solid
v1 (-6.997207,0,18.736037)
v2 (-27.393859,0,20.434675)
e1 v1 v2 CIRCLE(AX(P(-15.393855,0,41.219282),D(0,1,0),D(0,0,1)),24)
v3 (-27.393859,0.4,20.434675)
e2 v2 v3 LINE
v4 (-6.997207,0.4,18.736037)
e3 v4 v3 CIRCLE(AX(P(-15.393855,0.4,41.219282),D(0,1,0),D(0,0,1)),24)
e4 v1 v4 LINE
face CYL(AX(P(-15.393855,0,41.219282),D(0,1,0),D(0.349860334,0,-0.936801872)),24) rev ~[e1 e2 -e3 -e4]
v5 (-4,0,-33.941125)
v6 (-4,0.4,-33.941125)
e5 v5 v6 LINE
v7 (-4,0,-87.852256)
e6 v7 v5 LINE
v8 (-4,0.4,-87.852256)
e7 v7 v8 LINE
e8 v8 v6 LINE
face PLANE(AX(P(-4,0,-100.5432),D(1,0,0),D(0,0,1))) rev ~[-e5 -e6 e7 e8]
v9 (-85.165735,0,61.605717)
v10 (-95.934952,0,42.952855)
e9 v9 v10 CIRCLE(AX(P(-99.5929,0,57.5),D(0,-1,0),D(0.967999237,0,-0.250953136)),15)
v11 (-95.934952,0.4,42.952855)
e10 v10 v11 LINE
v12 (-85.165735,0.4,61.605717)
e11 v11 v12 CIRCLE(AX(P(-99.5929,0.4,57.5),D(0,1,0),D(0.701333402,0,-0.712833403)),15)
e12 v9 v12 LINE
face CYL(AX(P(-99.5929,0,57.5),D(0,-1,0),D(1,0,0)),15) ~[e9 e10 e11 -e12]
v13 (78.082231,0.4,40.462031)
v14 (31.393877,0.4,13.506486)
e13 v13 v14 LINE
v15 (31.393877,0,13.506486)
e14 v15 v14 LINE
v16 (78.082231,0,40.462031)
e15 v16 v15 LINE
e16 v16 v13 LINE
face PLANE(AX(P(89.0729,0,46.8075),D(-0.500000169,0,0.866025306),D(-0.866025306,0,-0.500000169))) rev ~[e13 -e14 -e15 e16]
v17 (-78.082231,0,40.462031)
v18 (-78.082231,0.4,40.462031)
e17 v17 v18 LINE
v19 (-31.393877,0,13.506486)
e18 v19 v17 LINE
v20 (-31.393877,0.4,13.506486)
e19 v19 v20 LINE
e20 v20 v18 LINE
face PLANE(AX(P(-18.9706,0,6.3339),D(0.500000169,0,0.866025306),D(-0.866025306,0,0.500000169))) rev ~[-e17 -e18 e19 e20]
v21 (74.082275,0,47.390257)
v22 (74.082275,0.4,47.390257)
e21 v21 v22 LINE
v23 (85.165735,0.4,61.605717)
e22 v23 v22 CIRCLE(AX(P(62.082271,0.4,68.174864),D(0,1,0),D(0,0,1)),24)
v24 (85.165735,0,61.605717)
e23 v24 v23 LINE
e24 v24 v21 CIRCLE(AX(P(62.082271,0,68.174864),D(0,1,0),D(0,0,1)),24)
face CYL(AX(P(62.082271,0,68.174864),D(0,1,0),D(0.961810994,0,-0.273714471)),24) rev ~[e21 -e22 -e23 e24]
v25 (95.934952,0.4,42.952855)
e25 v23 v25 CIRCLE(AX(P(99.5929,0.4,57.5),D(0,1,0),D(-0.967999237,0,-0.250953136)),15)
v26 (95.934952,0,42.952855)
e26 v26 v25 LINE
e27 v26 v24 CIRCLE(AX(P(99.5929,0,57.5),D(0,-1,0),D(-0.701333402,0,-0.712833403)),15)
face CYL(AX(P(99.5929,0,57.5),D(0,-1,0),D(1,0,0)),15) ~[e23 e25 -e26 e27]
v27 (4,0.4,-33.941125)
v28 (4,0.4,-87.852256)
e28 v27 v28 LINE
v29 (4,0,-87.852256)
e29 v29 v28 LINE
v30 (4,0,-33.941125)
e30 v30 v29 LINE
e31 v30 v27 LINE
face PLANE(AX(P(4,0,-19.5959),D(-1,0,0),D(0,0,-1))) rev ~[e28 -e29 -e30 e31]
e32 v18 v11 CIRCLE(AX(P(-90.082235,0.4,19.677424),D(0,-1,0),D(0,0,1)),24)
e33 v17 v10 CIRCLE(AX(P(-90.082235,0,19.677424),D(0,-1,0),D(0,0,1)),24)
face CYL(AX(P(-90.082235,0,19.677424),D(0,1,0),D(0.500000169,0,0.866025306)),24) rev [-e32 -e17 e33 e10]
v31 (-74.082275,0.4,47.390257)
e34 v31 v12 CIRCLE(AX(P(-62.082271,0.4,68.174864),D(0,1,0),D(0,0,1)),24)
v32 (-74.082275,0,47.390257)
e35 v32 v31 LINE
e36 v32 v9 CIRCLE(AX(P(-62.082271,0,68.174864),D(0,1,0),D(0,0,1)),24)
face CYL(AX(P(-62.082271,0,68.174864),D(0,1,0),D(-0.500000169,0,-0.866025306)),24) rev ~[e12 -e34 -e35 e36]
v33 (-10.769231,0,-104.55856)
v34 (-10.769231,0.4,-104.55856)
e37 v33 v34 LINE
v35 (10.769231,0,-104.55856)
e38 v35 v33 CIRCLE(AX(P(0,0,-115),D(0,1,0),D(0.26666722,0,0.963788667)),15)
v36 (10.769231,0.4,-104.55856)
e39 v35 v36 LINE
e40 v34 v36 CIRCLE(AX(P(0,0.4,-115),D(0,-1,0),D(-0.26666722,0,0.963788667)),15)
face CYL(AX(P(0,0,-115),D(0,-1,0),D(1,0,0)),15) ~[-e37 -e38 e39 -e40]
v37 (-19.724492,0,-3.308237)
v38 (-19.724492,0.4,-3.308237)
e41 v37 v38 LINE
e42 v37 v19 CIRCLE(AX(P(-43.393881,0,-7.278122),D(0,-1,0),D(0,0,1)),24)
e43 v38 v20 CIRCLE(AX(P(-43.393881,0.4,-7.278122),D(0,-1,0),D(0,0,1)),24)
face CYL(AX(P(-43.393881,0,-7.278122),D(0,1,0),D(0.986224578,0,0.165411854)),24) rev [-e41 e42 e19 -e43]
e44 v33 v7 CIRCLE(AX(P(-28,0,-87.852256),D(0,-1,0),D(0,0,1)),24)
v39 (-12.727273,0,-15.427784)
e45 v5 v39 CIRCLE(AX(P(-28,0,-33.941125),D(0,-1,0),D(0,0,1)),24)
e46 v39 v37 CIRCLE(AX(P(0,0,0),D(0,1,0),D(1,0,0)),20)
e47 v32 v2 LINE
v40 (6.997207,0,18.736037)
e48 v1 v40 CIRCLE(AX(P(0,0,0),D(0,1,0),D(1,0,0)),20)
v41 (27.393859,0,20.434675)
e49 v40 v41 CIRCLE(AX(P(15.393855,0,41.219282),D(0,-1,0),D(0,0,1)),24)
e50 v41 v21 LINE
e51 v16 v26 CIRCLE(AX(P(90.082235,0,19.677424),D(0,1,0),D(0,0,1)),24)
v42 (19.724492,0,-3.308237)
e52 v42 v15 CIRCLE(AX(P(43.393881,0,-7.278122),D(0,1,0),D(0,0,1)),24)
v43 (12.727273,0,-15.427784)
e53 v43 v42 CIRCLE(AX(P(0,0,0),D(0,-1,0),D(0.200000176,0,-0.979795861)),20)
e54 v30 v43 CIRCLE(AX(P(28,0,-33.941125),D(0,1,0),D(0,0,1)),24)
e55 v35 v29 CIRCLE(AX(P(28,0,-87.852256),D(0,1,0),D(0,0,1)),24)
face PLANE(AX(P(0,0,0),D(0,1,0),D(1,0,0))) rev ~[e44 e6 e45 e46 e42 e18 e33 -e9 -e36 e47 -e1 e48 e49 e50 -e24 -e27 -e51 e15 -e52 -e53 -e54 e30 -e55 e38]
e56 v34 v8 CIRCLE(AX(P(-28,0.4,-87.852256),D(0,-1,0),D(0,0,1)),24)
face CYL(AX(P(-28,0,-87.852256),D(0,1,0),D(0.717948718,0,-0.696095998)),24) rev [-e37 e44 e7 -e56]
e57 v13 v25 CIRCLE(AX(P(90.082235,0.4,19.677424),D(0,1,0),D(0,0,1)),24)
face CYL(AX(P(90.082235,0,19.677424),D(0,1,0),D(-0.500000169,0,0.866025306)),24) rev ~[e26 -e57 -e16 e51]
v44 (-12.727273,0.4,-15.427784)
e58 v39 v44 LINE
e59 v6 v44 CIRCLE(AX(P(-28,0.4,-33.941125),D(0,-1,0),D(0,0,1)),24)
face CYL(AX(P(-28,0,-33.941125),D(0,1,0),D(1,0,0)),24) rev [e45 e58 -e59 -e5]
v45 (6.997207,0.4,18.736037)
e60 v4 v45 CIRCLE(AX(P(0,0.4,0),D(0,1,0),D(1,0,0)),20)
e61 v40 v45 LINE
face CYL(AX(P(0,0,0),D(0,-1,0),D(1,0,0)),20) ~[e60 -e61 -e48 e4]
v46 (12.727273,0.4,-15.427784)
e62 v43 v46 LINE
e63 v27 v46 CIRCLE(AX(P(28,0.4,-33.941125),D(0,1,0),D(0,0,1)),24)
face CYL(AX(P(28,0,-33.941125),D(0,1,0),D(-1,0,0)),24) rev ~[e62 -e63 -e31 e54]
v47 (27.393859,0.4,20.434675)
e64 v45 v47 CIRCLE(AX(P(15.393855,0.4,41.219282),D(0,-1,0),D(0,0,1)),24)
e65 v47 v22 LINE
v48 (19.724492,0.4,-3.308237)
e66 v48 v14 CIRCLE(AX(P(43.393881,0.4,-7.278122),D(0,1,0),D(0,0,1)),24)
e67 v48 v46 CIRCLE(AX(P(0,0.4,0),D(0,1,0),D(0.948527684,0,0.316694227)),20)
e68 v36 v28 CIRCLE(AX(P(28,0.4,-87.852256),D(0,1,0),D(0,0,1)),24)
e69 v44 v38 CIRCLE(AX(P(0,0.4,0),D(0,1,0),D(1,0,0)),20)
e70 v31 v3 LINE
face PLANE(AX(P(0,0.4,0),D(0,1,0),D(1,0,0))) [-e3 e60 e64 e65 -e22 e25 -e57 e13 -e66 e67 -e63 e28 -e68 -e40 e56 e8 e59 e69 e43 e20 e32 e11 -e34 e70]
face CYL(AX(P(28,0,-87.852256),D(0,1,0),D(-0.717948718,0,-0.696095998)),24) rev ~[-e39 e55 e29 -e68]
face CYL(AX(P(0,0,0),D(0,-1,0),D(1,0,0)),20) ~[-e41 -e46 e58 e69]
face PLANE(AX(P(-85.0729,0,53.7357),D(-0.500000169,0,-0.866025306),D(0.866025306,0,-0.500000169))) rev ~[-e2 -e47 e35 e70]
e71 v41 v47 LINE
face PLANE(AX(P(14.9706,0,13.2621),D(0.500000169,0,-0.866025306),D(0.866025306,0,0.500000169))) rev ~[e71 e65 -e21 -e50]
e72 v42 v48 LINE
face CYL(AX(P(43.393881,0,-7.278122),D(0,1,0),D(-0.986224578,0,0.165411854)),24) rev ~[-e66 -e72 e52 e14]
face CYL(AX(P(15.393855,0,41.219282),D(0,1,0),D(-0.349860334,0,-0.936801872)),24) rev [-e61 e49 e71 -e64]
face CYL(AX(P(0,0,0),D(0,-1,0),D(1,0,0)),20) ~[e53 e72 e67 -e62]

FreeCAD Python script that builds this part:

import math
import FreeCAD as App
import Part
import Sketcher

V = App.Vector
Q = App.Units.Quantity


def edges_at(feature, points):
    """Names of the edges that pass closest to the given points."""
    edges = feature.Shape.Edges
    near = lambda p: min(range(len(edges)), key=lambda i: edges[i].distToShape(Part.Vertex(*p))[0])
    return sorted({f"Edge{near(p) + 1}" for p in points})

doc = App.newDocument("Part")
body = doc.addObject("PartDesign::Body", "Body")

# Sketch on XZ plane
sketch1 = body.newObject("Sketcher::SketchObject", "Sketch")
sketch1.AttachmentSupport = (doc.getObject("XZ_Plane"), [""])
sketch1.MapMode = "FlatFace"
sketch1.addGeometry(Part.ArcOfCircle(Part.Circle(V(0, -115, 0), V(0, 0, 1), 15), math.radians(105.466043), math.radians(434.533957)), False)
sketch1.addGeometry(Part.LineSegment(V(-4, -100.5432, 0), V(-4, -19.5959, 0)), False)
sketch1.addGeometry(Part.ArcOfCircle(Part.Circle(V(0, 0, 0), V(0, 0, 1), 20), math.radians(161.536877), math.radians(258.463031)), False)
sketch1.addGeometry(Part.LineSegment(V(-18.9706, 6.3339, 0), V(-89.0729, 46.8075, 0)), False)
sketch1.addGeometry(Part.ArcOfCircle(Part.Circle(V(-99.5929, 57.5, 0), V(0, 0, 1), 15), math.radians(-14.533921), math.radians(314.534081)), False)
sketch1.addGeometry(Part.LineSegment(V(-85.0729, 53.7357, 0), V(-14.9706, 13.2621, 0)), False)
sketch1.addGeometry(Part.ArcOfCircle(Part.Circle(V(0, 0, 0), V(0, 0, 1), 20), math.radians(41.536973), math.radians(138.463027)), False)
sketch1.addGeometry(Part.LineSegment(V(14.9706, 13.2621, 0), V(85.0729, 53.7357, 0)), False)
sketch1.addGeometry(Part.ArcOfCircle(Part.Circle(V(99.5929, 57.5, 0), V(0, 0, 1), 15), math.radians(-134.534081), math.radians(194.533921)), False)
sketch1.addGeometry(Part.LineSegment(V(89.0729, 46.8075, 0), V(18.9706, 6.3339, 0)), False)
sketch1.addGeometry(Part.ArcOfCircle(Part.Circle(V(0, 0, 0), V(0, 0, 1), 20), math.radians(-78.463031), math.radians(18.463123)), False)
sketch1.addGeometry(Part.LineSegment(V(4, -19.5959, 0), V(4, -100.5432, 0)), False)
sketch1.addConstraint(Sketcher.Constraint("Coincident", 0, 1, 1, 1))
sketch1.addConstraint(Sketcher.Constraint("Coincident", 1, 2, 2, 2))
sketch1.addConstraint(Sketcher.Constraint("Coincident", 2, 1, 3, 1))
sketch1.addConstraint(Sketcher.Constraint("Coincident", 3, 2, 4, 2))
sketch1.addConstraint(Sketcher.Constraint("Coincident", 4, 1, 5, 1))
sketch1.addConstraint(Sketcher.Constraint("Coincident", 5, 2, 6, 2))
sketch1.addConstraint(Sketcher.Constraint("Coincident", 6, 1, 7, 1))
sketch1.addConstraint(Sketcher.Constraint("Coincident", 7, 2, 8, 2))
sketch1.addConstraint(Sketcher.Constraint("Coincident", 8, 1, 9, 1))
sketch1.addConstraint(Sketcher.Constraint("Coincident", 9, 2, 10, 2))
sketch1.addConstraint(Sketcher.Constraint("Coincident", 10, 1, 11, 1))
sketch1.addConstraint(Sketcher.Constraint("Coincident", 11, 2, 0, 2))
sketch1.addConstraint(Sketcher.Constraint("Vertical", 1))
sketch1.addConstraint(Sketcher.Constraint("Vertical", 11))
sketch1.addConstraint(Sketcher.Constraint("Coincident", 2, 3, -1, 1))
sketch1.addConstraint(Sketcher.Constraint("Coincident", 6, 3, -1, 1))
sketch1.addConstraint(Sketcher.Constraint("Coincident", 10, 3, -1, 1))
sketch1.addConstraint(Sketcher.Constraint("Equal", 0, 4))
sketch1.addConstraint(Sketcher.Constraint("Equal", 2, 6))
sketch1.addConstraint(Sketcher.Constraint("Equal", 4, 8))
sketch1.addConstraint(Sketcher.Constraint("Equal", 6, 10))
sketch1.addConstraint(Sketcher.Constraint("Symmetric", 4, 3, 8, 3, -2))
sketch1.addConstraint(Sketcher.Constraint("Symmetric", 0, 1, 11, 2, -2))
sketch1.addConstraint(Sketcher.Constraint("Parallel", 3, 5))
sketch1.addConstraint(Sketcher.Constraint("Parallel", 7, 9))
sketch1.addConstraint(Sketcher.Constraint("Horizontal", 5, 2, 6, 1))
sketch1.addConstraint(Sketcher.Constraint("Horizontal", 4, 1, 7, 2))
sketch1.addConstraint(Sketcher.Constraint("Horizontal", 3, 2, 8, 1))
sketch1.addConstraint(Sketcher.Constraint("Equal", 3, 5))
sketch1.addConstraint(Sketcher.Constraint("Radius", 0, 15.0))
sketch1.addConstraint(Sketcher.Constraint("Radius", 2, 20.0))
sketch1.addConstraint(Sketcher.Constraint("Angle", 5, Q("-30 deg")))
sketch1.addConstraint(Sketcher.Constraint("DistanceX", 1, 2, 10, 1, 8.0))
sketch1.addConstraint(Sketcher.Constraint("DistanceY", 0, 3, -1, 1, 115.0))
sketch1.addConstraint(Sketcher.Constraint("DistanceX", 3, 2, 4, 1, 4.0))
sketch1.addConstraint(Sketcher.Constraint("DistanceY", -1, 1, 4, 3, 57.5))
sketch1.addConstraint(Sketcher.Constraint("DistanceX", 4, 3, 3, 2, 10.52))
pad1 = body.newObject("PartDesign::Pad", "Pad")
pad1.Profile = sketch1
pad1.Length = 0.4
pad1.Reversed = True
doc.recompute()

fillet = body.newObject("PartDesign::Fillet", "Fillet")
fillet.Base = (pad1, edges_at(pad1, [
    (-4, 0.2, -100.543),
    (4, 0.2, -100.543),
    (-4, 0.2, -19.596),
    (4, 0.2, -19.596),
    (-18.971, 0.2, 6.334),
    (-14.971, 0.2, 13.262),
    (14.971, 0.2, 13.262),
    (18.971, 0.2, 6.334),
    (85.073, 0.2, 53.736),
    (89.073, 0.2, 46.807),
    (-89.073, 0.2, 46.807),
    (-85.073, 0.2, 53.736),
]))
fillet.Radius = 24

doc.recompute()
